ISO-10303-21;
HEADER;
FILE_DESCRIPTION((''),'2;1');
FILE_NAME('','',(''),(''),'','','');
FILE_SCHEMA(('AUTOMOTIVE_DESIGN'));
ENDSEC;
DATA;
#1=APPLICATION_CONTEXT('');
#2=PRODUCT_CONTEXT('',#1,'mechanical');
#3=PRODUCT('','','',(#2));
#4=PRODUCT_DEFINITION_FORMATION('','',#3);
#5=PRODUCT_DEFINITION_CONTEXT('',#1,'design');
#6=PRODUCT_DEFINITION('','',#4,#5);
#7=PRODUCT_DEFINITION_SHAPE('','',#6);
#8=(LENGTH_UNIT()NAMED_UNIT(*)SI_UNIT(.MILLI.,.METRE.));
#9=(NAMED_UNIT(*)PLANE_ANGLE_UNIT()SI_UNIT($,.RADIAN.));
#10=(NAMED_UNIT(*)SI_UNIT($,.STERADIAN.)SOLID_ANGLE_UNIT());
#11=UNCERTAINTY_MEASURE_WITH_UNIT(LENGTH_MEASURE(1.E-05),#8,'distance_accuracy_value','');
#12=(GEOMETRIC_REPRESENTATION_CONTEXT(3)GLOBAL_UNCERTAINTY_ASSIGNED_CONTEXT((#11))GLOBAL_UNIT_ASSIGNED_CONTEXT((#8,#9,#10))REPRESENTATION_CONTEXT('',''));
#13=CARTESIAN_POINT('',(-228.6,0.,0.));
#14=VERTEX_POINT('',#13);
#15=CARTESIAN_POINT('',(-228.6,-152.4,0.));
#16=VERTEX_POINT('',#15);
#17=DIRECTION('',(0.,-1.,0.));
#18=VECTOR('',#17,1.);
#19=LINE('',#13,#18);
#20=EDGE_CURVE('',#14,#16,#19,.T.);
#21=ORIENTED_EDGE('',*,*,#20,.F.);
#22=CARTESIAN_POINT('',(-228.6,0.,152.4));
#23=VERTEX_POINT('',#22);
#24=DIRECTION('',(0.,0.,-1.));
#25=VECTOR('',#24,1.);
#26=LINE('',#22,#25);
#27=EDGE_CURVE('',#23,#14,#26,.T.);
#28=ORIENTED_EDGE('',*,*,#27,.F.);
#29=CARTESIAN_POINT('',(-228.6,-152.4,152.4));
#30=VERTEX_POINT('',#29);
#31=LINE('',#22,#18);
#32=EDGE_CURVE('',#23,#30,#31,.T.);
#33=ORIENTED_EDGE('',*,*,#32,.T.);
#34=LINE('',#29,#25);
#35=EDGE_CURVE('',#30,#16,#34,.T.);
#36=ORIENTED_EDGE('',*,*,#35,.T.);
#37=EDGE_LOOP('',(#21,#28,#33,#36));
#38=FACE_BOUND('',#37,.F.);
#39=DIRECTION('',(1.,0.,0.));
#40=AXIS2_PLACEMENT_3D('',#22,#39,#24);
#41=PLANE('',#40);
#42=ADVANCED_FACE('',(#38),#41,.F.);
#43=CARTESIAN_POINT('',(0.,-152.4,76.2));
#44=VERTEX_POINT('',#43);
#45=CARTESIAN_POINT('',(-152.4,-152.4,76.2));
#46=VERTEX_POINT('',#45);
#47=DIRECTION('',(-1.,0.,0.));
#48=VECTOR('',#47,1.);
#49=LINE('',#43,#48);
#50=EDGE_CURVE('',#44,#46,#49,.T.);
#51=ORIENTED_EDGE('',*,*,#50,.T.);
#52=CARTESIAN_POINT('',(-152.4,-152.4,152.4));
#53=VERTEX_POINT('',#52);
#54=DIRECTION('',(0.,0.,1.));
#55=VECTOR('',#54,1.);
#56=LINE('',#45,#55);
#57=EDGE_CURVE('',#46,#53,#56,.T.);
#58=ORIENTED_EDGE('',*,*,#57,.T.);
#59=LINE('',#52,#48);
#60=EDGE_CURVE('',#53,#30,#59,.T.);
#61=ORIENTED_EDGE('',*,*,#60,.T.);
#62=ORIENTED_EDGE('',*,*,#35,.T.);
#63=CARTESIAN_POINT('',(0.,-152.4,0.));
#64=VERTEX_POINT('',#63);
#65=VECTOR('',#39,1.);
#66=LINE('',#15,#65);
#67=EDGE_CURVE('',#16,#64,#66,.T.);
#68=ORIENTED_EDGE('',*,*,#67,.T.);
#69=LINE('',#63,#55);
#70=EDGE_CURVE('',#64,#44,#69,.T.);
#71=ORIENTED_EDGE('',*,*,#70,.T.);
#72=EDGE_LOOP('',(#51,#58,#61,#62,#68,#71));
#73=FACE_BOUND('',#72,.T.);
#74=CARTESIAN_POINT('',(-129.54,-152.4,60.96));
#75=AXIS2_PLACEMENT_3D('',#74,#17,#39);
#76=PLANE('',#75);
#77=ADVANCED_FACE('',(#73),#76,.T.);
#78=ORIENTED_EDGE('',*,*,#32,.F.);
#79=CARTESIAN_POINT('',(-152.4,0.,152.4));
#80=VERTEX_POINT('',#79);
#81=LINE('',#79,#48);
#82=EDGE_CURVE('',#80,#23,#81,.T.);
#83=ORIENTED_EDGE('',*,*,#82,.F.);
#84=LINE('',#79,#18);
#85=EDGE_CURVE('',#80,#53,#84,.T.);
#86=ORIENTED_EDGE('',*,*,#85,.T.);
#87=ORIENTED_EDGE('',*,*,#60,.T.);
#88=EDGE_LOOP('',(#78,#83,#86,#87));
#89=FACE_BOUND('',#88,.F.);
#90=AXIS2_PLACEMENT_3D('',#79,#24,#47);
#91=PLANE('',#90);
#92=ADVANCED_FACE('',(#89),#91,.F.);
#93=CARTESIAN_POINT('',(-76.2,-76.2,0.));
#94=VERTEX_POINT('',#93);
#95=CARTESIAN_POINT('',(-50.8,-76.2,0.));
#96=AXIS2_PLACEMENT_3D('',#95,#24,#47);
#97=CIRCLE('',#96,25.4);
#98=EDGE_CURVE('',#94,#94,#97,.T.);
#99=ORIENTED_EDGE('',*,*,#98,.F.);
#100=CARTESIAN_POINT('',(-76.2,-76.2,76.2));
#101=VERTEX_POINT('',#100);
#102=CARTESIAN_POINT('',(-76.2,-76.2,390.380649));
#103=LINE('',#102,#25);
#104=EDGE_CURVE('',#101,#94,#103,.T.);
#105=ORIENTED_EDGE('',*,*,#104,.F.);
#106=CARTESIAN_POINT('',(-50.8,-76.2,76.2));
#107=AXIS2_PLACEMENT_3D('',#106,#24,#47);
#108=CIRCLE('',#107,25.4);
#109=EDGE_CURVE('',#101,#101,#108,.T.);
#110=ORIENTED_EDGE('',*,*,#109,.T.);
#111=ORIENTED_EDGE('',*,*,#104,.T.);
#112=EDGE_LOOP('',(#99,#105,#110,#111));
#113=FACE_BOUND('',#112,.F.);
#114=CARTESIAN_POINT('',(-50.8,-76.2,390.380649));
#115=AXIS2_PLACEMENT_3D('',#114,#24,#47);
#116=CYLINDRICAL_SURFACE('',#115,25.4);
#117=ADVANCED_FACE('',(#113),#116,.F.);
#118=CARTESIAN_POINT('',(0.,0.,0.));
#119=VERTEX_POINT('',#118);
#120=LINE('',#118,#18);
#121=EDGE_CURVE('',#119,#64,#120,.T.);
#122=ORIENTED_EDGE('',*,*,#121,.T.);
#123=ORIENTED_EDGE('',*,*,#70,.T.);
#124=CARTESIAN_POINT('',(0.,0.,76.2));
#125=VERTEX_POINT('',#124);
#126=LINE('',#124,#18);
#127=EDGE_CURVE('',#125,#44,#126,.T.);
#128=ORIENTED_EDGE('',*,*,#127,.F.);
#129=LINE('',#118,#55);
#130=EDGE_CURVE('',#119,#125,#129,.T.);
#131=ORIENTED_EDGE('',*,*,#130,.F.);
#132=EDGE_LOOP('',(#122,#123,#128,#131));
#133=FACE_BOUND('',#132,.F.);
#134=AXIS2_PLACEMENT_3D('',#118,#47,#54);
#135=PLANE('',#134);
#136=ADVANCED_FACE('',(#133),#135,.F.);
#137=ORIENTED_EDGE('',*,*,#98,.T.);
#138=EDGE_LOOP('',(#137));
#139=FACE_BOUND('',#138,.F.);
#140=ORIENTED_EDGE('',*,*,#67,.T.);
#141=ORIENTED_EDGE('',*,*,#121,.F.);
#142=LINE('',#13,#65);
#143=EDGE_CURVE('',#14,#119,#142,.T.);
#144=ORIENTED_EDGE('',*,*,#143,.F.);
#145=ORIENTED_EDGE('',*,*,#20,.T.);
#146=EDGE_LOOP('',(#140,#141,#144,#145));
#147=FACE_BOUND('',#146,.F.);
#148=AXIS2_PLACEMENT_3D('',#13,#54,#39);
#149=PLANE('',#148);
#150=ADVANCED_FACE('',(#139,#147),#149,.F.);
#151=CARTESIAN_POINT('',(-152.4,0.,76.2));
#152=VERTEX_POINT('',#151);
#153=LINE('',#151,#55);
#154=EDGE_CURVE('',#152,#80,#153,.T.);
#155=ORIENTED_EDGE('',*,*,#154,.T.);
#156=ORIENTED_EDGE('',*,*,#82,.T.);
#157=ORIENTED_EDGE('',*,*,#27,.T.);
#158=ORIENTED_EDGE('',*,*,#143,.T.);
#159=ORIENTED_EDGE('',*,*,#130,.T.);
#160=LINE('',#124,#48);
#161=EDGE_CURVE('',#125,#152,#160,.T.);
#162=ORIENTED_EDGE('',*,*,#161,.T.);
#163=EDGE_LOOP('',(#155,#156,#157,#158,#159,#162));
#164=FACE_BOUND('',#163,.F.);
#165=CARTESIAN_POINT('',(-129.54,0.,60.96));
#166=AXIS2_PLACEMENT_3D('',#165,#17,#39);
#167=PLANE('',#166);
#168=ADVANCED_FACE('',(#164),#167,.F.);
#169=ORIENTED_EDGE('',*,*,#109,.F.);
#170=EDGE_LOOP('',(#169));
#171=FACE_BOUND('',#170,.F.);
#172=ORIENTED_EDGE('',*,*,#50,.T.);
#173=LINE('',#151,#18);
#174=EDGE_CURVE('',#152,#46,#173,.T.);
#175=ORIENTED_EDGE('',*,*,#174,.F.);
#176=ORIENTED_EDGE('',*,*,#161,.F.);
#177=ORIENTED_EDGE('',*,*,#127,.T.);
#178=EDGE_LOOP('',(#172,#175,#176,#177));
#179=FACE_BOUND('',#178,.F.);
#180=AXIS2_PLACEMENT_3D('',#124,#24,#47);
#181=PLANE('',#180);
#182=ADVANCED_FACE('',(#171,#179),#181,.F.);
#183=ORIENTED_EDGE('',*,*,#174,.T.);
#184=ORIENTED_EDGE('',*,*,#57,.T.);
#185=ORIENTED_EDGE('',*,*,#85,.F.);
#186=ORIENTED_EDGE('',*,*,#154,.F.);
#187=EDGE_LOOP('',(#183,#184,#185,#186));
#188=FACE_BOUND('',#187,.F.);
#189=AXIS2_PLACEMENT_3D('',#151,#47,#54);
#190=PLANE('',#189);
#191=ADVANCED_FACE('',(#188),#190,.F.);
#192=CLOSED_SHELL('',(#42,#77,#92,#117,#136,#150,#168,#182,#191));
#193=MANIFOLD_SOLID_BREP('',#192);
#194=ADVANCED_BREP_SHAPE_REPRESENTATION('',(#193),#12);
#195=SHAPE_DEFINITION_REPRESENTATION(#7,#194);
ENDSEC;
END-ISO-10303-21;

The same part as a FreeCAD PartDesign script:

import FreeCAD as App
import Part
import Sketcher
from FreeCAD import Vector
Q = App.Units.Quantity

doc = App.newDocument("Part")
body = doc.addObject("PartDesign::Body", "Body")

sketch1 = body.newObject("Sketcher::SketchObject", "Sketch")
sketch1.AttachmentSupport = (doc.getObject("XZ_Plane"), [""])
sketch1.MapMode = "FlatFace"
sketch1.addGeometry(Part.LineSegment(Vector(-229, 0, 0), Vector(0, 0, 0)), False)
sketch1.addGeometry(Part.LineSegment(Vector(0, 0, 0), Vector(0, 76, 0)), False)
sketch1.addGeometry(Part.LineSegment(Vector(0, 76, 0), Vector(-152, 76, 0)), False)
sketch1.addGeometry(Part.LineSegment(Vector(-152, 76, 0), Vector(-152, 152, 0)), False)
sketch1.addGeometry(Part.LineSegment(Vector(-152, 152, 0), Vector(-229, 152, 0)), False)
sketch1.addGeometry(Part.LineSegment(Vector(-229, 152, 0), Vector(-229, 0, 0)), False)
sketch1.addConstraint(Sketcher.Constraint("Coincident", 0, 2, 1, 1))
sketch1.addConstraint(Sketcher.Constraint("Coincident", 1, 2, 2, 1))
sketch1.addConstraint(Sketcher.Constraint("Coincident", 2, 2, 3, 1))
sketch1.addConstraint(Sketcher.Constraint("Coincident", 3, 2, 4, 1))
sketch1.addConstraint(Sketcher.Constraint("Coincident", 4, 2, 5, 1))
sketch1.addConstraint(Sketcher.Constraint("Coincident", 5, 2, 0, 1))
sketch1.addConstraint(Sketcher.Constraint("Horizontal", 0))
sketch1.addConstraint(Sketcher.Constraint("Vertical", 1))
sketch1.addConstraint(Sketcher.Constraint("Horizontal", 2))
sketch1.addConstraint(Sketcher.Constraint("Vertical", 3))
sketch1.addConstraint(Sketcher.Constraint("Horizontal", 4))
sketch1.addConstraint(Sketcher.Constraint("Vertical", 5))
sketch1.addConstraint(Sketcher.Constraint("Coincident", 0, 2, -1, 1))
sketch1.addConstraint(Sketcher.Constraint("Equal", 4, 1))
sketch1.addConstraint(Sketcher.Constraint("Equal", 1, 3))
sketch1.addConstraint(Sketcher.Constraint("Equal", 2, 5))
sketch1.addConstraint(Sketcher.Constraint("DistanceX", 0, 1, 0, 2, Q("9 in")))
pad1 = body.newObject("PartDesign::Pad", "Pad")
pad1.Profile = sketch1
pad1.Length = Q("6 in")

sketch2 = body.newObject("Sketcher::SketchObject", "Sketch001")
sketch2.AttachmentSupport = (doc.getObject("XY_Plane"), [""])
sketch2.MapMode = "FlatFace"
sketch2.AttachmentOffset = App.Placement(Vector(0, 0, 3 * 25.4), App.Rotation())
sketch2.addGeometry(Part.Circle(Vector(-51, -76, 0), Vector(0, 0, 1), 25), False)
sketch2.addConstraint(Sketcher.Constraint("Diameter", 0, Q("2 in")))
sketch2.addConstraint(Sketcher.Constraint("DistanceX", 0, 3, -1, 1, Q("2 in")))
sketch2.addConstraint(Sketcher.Constraint("DistanceY", 0, 3, -1, 1, Q("3 in")))
doc.recompute()
hole = body.newObject("PartDesign::Hole", "Hole")
hole.Profile = sketch2
hole.ThreadType = "None"
hole.Diameter = Q("2 in")
hole.DepthType = "ThroughAll"

doc.recompute()
